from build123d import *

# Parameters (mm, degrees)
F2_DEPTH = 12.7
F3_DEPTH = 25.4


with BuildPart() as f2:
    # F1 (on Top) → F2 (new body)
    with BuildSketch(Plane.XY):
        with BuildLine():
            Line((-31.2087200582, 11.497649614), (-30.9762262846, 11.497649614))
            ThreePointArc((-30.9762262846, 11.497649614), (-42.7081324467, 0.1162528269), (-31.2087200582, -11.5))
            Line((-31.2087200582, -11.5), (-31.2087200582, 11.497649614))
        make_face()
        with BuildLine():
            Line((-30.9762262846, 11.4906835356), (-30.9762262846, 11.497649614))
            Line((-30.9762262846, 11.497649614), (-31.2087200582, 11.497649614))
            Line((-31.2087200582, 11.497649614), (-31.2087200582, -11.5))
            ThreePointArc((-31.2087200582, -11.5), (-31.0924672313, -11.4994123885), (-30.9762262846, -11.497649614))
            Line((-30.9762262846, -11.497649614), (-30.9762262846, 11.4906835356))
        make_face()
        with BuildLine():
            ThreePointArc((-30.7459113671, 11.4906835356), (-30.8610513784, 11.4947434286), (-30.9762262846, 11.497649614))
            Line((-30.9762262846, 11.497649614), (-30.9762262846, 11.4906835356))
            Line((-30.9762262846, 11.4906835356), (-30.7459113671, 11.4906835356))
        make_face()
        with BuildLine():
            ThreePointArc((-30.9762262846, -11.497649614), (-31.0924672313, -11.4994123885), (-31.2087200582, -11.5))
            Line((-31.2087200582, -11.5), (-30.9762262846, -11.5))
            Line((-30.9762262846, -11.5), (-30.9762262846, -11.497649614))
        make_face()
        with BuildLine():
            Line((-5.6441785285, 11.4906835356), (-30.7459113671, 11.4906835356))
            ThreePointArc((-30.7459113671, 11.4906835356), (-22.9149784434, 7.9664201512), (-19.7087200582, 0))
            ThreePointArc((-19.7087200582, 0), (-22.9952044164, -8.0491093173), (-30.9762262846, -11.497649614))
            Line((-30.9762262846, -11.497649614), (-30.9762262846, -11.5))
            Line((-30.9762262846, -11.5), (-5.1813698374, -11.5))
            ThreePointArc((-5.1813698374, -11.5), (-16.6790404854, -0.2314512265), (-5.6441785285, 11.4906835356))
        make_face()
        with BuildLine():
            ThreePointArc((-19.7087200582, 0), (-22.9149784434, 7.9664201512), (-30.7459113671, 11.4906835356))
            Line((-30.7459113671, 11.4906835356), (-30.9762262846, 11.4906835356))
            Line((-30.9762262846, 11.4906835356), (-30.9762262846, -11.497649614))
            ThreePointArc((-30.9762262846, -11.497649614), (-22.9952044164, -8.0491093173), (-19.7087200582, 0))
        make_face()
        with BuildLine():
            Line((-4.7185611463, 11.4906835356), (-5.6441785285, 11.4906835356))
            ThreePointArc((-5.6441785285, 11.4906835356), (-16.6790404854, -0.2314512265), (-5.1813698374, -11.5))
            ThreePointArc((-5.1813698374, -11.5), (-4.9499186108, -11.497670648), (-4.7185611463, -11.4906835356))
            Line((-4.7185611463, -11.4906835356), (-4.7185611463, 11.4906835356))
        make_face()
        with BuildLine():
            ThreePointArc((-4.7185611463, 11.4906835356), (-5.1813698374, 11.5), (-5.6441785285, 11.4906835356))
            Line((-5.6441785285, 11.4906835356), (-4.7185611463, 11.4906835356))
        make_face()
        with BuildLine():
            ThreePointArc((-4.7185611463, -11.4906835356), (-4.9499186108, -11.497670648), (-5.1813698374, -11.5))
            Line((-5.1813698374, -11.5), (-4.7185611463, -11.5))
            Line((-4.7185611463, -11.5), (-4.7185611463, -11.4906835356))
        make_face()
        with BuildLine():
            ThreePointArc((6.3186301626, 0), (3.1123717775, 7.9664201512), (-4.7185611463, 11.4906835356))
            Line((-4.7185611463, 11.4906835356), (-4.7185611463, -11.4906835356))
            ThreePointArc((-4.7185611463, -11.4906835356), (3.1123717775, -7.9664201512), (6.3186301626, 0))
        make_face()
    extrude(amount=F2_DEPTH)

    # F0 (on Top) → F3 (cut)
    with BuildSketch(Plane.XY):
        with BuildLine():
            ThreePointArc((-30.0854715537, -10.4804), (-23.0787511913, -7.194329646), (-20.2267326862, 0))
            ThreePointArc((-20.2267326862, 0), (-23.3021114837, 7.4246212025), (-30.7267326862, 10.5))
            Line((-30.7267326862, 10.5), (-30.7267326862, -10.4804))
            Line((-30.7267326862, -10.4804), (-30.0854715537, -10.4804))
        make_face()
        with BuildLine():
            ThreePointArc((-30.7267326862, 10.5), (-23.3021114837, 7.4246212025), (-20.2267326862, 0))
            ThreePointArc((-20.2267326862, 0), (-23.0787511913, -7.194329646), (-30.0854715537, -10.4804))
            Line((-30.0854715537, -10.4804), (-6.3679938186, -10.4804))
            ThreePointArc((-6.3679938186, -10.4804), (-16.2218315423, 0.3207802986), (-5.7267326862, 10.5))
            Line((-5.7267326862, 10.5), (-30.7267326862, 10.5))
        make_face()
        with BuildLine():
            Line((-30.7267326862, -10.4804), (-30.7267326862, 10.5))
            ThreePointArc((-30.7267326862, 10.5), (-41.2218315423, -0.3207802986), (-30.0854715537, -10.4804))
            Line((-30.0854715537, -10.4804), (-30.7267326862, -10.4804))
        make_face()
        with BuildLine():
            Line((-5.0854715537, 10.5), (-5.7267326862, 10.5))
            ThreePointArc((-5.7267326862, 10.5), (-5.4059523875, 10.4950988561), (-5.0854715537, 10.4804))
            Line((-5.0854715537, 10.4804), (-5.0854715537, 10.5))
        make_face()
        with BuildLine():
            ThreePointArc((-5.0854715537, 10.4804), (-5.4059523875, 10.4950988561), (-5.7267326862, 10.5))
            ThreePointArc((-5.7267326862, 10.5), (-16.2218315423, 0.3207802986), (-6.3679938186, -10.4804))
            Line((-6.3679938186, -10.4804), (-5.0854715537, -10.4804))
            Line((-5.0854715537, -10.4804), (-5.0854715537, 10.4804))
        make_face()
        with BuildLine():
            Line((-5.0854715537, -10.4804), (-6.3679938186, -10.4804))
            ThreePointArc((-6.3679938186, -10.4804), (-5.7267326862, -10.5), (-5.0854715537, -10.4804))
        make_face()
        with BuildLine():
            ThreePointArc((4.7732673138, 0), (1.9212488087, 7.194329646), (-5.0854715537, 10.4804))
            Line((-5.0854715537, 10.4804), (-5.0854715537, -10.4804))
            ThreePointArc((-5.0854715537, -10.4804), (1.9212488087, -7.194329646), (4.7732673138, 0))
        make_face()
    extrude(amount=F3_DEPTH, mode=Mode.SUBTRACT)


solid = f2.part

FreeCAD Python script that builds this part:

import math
import FreeCAD as App
import Part
import Sketcher

V = App.Vector
Q = App.Units.Quantity

doc = App.newDocument("Part")
body = doc.addObject("PartDesign::Body", "Body")

sketch1 = doc.addObject("Sketcher::SketchObject", "Sketch")
body.addObject(sketch1)
sketch1.AttachmentSupport = (doc.XY_Plane, [""])
sketch1.MapMode = "FlatFace"
sketch1.addGeometry([
    Part.ArcOfCircle(Part.Circle(V(-31.20872, 0, 0), V(0, 0, 1), 11.5), math.radians(87.693552), math.radians(88.841581)),
    Part.ArcOfCircle(Part.Circle(V(-31.20872, 0, 0), V(0, 0, 1), 11.5), math.radians(88.841581), math.radians(270)),
    Part.LineSegment(V(-31.20872, -11.5, 0), V(-4.718561, -11.5, 0)),
    Part.LineSegment(V(-4.718561, -11.5, 0), V(-4.718561, -11.490684, 0)),
    Part.ArcOfCircle(Part.Circle(V(-5.18137, 0, 0), V(0, 0, 1), 11.5), math.radians(-87.693552), math.radians(0)),
    Part.ArcOfCircle(Part.Circle(V(-5.18137, 0, 0), V(0, 0, 1), 11.5), math.radians(0), math.radians(87.693552)),
    Part.ArcOfCircle(Part.Circle(V(-5.18137, 0, 0), V(0, 0, 1), 11.5), math.radians(87.693552), math.radians(92.306448)),
    Part.LineSegment(V(-5.644179, 11.490684, 0), V(-30.745911, 11.490684, 0)),
], False)
sketch1.addConstraint([
    Sketcher.Constraint("Tangent", 0, 2, 1, 1),
    Sketcher.Constraint("Tangent", 1, 2, 2, 1),
    Sketcher.Constraint("Coincident", 2, 2, 3, 1),
    Sketcher.Constraint("Coincident", 3, 2, 4, 1),
    Sketcher.Constraint("Tangent", 4, 2, 5, 1),
    Sketcher.Constraint("Tangent", 5, 2, 6, 1),
    Sketcher.Constraint("Coincident", 6, 2, 7, 1),
    Sketcher.Constraint("Coincident", 7, 2, 0, 1),
    Sketcher.Constraint("Horizontal", 2),
    Sketcher.Constraint("Vertical", 3),
    Sketcher.Constraint("Horizontal", 7),
    Sketcher.Constraint("Coincident", 6, 3, 4, 3),
    Sketcher.Constraint("Equal", 0, 1),
    Sketcher.Constraint("Equal", 1, 4),
    Sketcher.Constraint("Symmetric", 3, 2, 5, 2, -1),
    Sketcher.Constraint("PointOnObject", 0, 3, -1),
    Sketcher.Constraint("PointOnObject", 4, 2, -1),
    Sketcher.Constraint("Horizontal", 5, 2, 6, 2),
    Sketcher.Constraint("Radius", 0, Q("11.5 mm")),
    Sketcher.Constraint("DistanceX", 2, 1, 2, 2, Q("26.490159 mm")),
    Sketcher.Constraint("DistanceX", 7, 2, 7, 1, Q("25.101733 mm")),
    Sketcher.Constraint("DistanceX", 0, 3, -1, 1, Q("31.20872 mm")),
    Sketcher.Constraint("DistanceY", -1, 1, 0, 2, Q("11.49765 mm")),
])
pad1 = doc.addObject("PartDesign::Pad", "Pad")
body.addObject(pad1)
pad1.Profile = sketch1
pad1.Length = 12.7

sketch2 = doc.addObject("Sketcher::SketchObject", "Sketch001")
body.addObject(sketch2)
sketch2.AttachmentSupport = (doc.XY_Plane, [""])
sketch2.MapMode = "FlatFace"
sketch2.addGeometry([
    Part.LineSegment(V(-30.085472, -10.4804, 0), V(-6.367994, -10.4804, 0)),
    Part.ArcOfCircle(Part.Circle(V(-5.726733, 0, 0), V(0, 0, 1), 10.5), math.radians(-93.501375), math.radians(-86.498625)),
    Part.ArcOfCircle(Part.Circle(V(-5.726733, 0, 0), V(0, 0, 1), 10.5), math.radians(-86.498625), math.radians(0)),
    Part.ArcOfCircle(Part.Circle(V(-5.726733, 0, 0), V(0, 0, 1), 10.5), math.radians(0), math.radians(86.498625)),
    Part.LineSegment(V(-5.085472, 10.4804, 0), V(-5.085472, 10.5, 0)),
    Part.LineSegment(V(-5.085472, 10.5, 0), V(-30.726733, 10.5, 0)),
    Part.ArcOfCircle(Part.Circle(V(-30.726733, 0, 0), V(0, 0, 1), 10.5), math.radians(90), math.radians(273.501375)),
], False)
sketch2.addConstraint([
    Sketcher.Constraint("Coincident", 0, 2, 1, 1),
    Sketcher.Constraint("Tangent", 1, 2, 2, 1),
    Sketcher.Constraint("Tangent", 2, 2, 3, 1),
    Sketcher.Constraint("Coincident", 3, 2, 4, 1),
    Sketcher.Constraint("Coincident", 4, 2, 5, 1),
    Sketcher.Constraint("Tangent", 5, 2, 6, 1),
    Sketcher.Constraint("Coincident", 6, 2, 0, 1),
    Sketcher.Constraint("Horizontal", 0),
    Sketcher.Constraint("Vertical", 4),
    Sketcher.Constraint("Horizontal", 5),
    Sketcher.Constraint("Coincident", 3, 3, 1, 3),
    Sketcher.Constraint("Equal", 3, 6),
    Sketcher.Constraint("Symmetric", 1, 2, 3, 2, -1),
    Sketcher.Constraint("PointOnObject", 6, 3, -1),
    Sketcher.Constraint("PointOnObject", 2, 2, -1),
    Sketcher.Constraint("Horizontal", 0, 2, 1, 2),
    Sketcher.Constraint("Radius", 1, Q("10.5 mm")),
    Sketcher.Constraint("DistanceX", 6, 3, 1, 3, Q("25 mm")),
    Sketcher.Constraint("DistanceY", 4, 1, 4, 2, Q("0.0196 mm")),
    Sketcher.Constraint("DistanceX", 1, 2, -1, 1, Q("5.085472 mm")),
])
pocket1 = doc.addObject("PartDesign::Pocket", "Pocket")
body.addObject(pocket1)
pocket1.Profile = sketch2
pocket1.Length = 25.4
pocket1.Reversed = True

doc.recompute()
